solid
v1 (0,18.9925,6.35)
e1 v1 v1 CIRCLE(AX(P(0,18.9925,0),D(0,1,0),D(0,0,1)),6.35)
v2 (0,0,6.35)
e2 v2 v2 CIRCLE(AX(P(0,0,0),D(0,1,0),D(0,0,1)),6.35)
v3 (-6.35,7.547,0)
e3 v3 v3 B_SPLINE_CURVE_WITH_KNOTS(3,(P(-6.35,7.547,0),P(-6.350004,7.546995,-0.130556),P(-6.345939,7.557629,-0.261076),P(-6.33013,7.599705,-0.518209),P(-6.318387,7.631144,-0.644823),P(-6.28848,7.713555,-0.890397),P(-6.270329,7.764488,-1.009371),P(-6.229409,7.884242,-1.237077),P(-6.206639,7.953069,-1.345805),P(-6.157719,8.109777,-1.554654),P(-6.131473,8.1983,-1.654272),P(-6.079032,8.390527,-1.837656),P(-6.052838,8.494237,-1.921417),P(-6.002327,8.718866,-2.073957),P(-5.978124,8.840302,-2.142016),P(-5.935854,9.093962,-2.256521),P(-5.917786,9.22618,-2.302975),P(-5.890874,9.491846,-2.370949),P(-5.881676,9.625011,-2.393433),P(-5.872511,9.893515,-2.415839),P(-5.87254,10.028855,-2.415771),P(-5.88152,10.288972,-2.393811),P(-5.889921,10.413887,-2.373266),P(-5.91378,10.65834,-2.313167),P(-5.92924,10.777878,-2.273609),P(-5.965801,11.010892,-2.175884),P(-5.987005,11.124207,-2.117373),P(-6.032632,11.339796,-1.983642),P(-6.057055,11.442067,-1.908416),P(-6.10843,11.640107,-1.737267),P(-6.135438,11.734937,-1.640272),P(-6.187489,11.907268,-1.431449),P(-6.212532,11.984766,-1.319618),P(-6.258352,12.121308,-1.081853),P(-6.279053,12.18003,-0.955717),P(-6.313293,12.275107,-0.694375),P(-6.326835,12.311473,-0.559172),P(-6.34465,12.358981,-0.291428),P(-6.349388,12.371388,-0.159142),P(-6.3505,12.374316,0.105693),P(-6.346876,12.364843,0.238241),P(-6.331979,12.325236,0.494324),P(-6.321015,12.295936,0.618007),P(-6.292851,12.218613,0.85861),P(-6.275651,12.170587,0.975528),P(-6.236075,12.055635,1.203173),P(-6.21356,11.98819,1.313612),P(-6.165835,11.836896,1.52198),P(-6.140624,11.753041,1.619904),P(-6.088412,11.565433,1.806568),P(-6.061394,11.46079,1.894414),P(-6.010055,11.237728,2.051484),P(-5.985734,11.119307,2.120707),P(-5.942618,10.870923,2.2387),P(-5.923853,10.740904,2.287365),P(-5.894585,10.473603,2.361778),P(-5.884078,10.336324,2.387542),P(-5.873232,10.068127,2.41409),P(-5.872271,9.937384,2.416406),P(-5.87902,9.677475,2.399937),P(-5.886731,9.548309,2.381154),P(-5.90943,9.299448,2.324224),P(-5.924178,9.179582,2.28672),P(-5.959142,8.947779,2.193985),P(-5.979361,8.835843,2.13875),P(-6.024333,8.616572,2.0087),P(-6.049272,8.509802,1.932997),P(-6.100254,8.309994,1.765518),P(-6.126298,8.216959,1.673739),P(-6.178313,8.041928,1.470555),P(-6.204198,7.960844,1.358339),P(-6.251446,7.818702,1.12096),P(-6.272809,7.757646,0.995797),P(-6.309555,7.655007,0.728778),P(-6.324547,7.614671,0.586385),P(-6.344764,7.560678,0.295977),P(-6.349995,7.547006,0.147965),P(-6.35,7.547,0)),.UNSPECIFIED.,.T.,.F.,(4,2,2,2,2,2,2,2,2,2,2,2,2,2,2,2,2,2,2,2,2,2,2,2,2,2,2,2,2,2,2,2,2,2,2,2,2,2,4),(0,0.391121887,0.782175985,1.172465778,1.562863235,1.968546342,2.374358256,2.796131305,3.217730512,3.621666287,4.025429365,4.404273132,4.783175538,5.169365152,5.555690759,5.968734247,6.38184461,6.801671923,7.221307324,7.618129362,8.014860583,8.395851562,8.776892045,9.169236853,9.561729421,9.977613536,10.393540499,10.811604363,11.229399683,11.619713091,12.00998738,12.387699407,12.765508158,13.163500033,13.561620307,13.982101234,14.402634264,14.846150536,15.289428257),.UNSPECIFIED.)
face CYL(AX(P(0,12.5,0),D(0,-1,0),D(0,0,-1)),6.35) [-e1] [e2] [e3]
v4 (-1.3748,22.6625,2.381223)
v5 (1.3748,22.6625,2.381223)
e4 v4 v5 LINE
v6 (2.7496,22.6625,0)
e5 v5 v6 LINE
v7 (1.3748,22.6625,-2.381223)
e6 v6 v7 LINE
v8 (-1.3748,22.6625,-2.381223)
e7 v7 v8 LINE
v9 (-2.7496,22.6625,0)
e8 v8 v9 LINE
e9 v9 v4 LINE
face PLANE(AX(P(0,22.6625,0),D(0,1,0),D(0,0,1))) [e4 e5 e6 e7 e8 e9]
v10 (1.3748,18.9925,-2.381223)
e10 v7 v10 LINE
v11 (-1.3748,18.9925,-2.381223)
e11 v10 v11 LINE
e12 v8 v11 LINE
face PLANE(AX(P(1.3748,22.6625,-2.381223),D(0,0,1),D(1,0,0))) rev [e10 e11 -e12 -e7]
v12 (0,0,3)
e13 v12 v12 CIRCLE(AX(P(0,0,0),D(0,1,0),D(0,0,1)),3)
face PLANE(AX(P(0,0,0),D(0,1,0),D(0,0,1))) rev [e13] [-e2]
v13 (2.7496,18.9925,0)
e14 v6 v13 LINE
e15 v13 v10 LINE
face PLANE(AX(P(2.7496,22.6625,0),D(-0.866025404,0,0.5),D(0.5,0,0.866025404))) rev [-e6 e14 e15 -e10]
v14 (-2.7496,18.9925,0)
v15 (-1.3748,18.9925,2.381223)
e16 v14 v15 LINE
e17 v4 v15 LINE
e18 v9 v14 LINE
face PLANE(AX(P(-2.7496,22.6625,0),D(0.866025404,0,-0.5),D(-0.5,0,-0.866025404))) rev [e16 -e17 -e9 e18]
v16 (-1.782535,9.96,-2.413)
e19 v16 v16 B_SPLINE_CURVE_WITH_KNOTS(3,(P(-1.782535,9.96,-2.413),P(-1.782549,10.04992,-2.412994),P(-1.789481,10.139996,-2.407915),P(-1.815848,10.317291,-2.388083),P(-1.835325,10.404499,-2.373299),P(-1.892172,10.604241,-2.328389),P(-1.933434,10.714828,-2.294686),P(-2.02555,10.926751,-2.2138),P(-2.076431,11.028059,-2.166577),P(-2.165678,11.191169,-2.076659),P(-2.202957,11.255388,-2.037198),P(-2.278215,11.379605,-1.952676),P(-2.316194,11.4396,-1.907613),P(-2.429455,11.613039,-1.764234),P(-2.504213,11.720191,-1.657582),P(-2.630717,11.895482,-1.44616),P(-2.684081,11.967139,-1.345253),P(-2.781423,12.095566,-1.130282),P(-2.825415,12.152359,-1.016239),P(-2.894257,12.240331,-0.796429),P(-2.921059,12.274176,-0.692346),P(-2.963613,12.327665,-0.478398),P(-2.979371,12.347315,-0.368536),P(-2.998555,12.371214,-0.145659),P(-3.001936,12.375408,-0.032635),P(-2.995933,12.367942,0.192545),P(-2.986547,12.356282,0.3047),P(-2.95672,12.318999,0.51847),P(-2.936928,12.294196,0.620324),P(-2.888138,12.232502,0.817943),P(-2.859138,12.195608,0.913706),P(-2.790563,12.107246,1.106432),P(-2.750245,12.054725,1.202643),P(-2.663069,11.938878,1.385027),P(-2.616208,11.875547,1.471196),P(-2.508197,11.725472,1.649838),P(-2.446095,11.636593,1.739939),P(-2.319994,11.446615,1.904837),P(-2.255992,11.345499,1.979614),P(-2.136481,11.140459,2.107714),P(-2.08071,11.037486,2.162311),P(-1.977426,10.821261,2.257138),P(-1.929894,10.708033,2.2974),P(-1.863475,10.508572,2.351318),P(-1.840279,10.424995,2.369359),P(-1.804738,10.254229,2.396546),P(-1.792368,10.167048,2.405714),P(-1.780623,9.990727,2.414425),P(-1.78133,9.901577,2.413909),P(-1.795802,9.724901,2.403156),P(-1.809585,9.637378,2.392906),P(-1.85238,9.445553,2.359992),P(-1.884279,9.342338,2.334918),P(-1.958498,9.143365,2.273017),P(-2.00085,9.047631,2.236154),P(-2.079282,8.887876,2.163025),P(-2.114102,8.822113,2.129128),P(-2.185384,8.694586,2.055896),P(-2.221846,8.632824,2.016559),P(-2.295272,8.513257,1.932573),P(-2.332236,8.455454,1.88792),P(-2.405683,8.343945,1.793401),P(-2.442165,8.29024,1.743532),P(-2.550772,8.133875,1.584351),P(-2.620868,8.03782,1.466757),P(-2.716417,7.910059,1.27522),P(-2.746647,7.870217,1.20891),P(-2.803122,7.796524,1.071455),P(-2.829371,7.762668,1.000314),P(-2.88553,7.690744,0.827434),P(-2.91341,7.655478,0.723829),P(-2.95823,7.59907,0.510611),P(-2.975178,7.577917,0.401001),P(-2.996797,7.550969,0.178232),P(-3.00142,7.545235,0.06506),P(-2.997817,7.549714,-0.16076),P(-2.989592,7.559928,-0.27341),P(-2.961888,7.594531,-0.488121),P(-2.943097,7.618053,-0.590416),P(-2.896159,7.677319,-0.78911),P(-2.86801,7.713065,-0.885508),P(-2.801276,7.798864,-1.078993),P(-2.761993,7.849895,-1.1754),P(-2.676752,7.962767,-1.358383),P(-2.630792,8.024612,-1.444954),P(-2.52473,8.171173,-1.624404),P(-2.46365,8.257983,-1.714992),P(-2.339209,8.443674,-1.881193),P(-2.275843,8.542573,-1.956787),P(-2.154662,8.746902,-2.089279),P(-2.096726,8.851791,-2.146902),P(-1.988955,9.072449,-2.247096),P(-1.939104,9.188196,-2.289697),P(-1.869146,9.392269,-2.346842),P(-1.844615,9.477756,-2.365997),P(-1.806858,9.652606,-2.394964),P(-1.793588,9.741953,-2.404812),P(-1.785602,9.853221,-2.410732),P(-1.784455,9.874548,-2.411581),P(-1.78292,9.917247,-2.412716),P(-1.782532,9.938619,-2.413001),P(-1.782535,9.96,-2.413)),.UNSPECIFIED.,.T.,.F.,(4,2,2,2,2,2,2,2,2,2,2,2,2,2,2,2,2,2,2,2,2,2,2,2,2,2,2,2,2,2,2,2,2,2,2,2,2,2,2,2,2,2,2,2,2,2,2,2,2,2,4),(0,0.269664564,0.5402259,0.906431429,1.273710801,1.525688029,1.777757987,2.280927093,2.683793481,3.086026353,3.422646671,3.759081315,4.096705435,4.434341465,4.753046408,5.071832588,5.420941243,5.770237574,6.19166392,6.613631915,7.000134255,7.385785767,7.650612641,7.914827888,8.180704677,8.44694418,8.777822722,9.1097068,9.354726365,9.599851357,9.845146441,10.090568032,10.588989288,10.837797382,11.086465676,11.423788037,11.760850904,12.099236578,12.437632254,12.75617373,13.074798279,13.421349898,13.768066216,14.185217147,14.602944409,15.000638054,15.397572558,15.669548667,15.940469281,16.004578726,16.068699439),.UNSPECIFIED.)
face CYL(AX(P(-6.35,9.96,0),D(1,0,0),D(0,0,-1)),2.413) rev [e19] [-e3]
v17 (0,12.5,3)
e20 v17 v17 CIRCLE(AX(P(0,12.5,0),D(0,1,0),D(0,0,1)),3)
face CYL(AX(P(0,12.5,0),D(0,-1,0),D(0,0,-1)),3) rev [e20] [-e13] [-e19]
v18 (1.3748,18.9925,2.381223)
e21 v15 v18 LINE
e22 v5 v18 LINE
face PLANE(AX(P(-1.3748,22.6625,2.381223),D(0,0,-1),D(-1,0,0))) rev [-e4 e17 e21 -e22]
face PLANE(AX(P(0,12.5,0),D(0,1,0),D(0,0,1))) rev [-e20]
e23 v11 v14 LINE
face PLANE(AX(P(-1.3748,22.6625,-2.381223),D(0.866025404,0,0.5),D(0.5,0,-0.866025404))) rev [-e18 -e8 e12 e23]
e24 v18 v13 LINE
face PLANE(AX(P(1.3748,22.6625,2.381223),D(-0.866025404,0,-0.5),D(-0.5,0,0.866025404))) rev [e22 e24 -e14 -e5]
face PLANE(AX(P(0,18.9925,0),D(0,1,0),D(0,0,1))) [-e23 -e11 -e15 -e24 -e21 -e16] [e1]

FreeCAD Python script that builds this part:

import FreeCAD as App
import Part
import Sketcher

V = App.Vector
Q = App.Units.Quantity

doc = App.newDocument("Part")
body = doc.addObject("PartDesign::Body", "Body")

# Sketch on XZ plane
sketch1 = body.newObject("Sketcher::SketchObject", "Sketch")
sketch1.AttachmentSupport = (doc.getObject("XZ_Plane"), [""])
sketch1.MapMode = "FlatFace"
sketch1.addGeometry([
    Part.Circle(V(0, 0, 0), V(0, 0, 1), 6.3),
    Part.Circle(V(0, 0, 0), V(0, 0, 1), 3),
], False)
sketch1.addConstraint([
    Sketcher.Constraint("Coincident", 0, 3, -1, 1),
    Sketcher.Constraint("Coincident", 1, 3, -1, 1),
    Sketcher.Constraint("Diameter", 1, 6.0),
    Sketcher.Constraint("Diameter", 0, 12.7),
])
pad1 = body.newObject("PartDesign::Pad", "Pad")
pad1.Profile = sketch1
pad1.Length = 12.5
pad1.Reversed = True

# Sketch on YZ plane
sketch2 = body.newObject("Sketcher::SketchObject", "Sketch001")
sketch2.AttachmentSupport = (doc.getObject("YZ_Plane"), [""])
sketch2.MapMode = "FlatFace"
sketch2.addGeometry(Part.Circle(V(10, 0, 0), V(0, 0, 1), 2.4), False)
sketch2.addConstraint([
    Sketcher.Constraint("PointOnObject", 0, 3, -1),
    Sketcher.Constraint("Diameter", 0, 4.826),
    Sketcher.Constraint("DistanceX", -1, 1, 0, 3, 9.96),
])
pocket1 = body.newObject("PartDesign::Pocket", "Pocket")
pocket1.Profile = sketch2
pocket1.Type = "ThroughAll"

# Sketch on XZ plane
sketch3 = body.newObject("Sketcher::SketchObject", "Sketch002")
sketch3.AttachmentSupport = (doc.getObject("XZ_Plane"), [""])
sketch3.MapMode = "FlatFace"
sketch3.AttachmentOffset = App.Placement(V(0, 0, -12.5), App.Rotation())
sketch3.addGeometry(Part.Circle(V(0, 0, 0), V(0, 0, 1), 6), False)
sketch3.addConstraint([
    Sketcher.Constraint("Coincident", 0, 3, -1, 1),
    Sketcher.Constraint("Diameter", 0, 12.7),
])
pad2 = body.newObject("PartDesign::Pad", "Pad001")
pad2.Profile = sketch3
pad2.Length = 6.4925
pad2.Reversed = True

# Sketch on XZ plane
sketch4 = body.newObject("Sketcher::SketchObject", "Sketch003")
sketch4.AttachmentSupport = (doc.getObject("XZ_Plane"), [""])
sketch4.MapMode = "FlatFace"
sketch4.AttachmentOffset = App.Placement(V(0, 0, -18.9925), App.Rotation())
sketch4.addGeometry([
    Part.LineSegment(V(-1.4, -2.4, 0), V(-2.7, 0, 0)),  # 0
    Part.LineSegment(V(-2.7, 0, 0), V(-1.4, 2.4, 0)),  # 1
    Part.LineSegment(V(-1.4, 2.4, 0), V(1.4, 2.4, 0)),  # 2
    Part.LineSegment(V(1.4, 2.4, 0), V(2.7, 0, 0)),  # 3
    Part.LineSegment(V(2.7, 0, 0), V(1.4, -2.4, 0)),  # 4
    Part.LineSegment(V(1.4, -2.4, 0), V(-1.4, -2.4, 0)),  # 5
], False)
sketch4.addConstraint([
    Sketcher.Constraint("Coincident", 0, 2, 1, 1),
    Sketcher.Constraint("Coincident", 1, 2, 2, 1),
    Sketcher.Constraint("Coincident", 2, 2, 3, 1),
    Sketcher.Constraint("Coincident", 3, 2, 4, 1),
    Sketcher.Constraint("Coincident", 4, 2, 5, 1),
    Sketcher.Constraint("Coincident", 5, 2, 0, 1),
    Sketcher.Constraint("Horizontal", 2),
    Sketcher.Constraint("Horizontal", 5),
    Sketcher.Constraint("Symmetric", 0, 2, 3, 2, -1, 1),
    Sketcher.Constraint("Symmetric", 1, 2, 4, 2, -1, 1),
    Sketcher.Constraint("PointOnObject", 0, 2, -1),
    Sketcher.Constraint("Parallel", 0, 3),
    Sketcher.Constraint("Vertical", 2, 2, 4, 2),
    Sketcher.Constraint("Angle", 0, Q("120 deg")),
    Sketcher.Constraint("DistanceX", 2, 1, 2, 2, 2.7496),
    Sketcher.Constraint("Distance", 0, 2.7496),
])
pad3 = body.newObject("PartDesign::Pad", "Pad002")
pad3.Profile = sketch4
pad3.Length = 3.67
pad3.Reversed = True

doc.recompute()
